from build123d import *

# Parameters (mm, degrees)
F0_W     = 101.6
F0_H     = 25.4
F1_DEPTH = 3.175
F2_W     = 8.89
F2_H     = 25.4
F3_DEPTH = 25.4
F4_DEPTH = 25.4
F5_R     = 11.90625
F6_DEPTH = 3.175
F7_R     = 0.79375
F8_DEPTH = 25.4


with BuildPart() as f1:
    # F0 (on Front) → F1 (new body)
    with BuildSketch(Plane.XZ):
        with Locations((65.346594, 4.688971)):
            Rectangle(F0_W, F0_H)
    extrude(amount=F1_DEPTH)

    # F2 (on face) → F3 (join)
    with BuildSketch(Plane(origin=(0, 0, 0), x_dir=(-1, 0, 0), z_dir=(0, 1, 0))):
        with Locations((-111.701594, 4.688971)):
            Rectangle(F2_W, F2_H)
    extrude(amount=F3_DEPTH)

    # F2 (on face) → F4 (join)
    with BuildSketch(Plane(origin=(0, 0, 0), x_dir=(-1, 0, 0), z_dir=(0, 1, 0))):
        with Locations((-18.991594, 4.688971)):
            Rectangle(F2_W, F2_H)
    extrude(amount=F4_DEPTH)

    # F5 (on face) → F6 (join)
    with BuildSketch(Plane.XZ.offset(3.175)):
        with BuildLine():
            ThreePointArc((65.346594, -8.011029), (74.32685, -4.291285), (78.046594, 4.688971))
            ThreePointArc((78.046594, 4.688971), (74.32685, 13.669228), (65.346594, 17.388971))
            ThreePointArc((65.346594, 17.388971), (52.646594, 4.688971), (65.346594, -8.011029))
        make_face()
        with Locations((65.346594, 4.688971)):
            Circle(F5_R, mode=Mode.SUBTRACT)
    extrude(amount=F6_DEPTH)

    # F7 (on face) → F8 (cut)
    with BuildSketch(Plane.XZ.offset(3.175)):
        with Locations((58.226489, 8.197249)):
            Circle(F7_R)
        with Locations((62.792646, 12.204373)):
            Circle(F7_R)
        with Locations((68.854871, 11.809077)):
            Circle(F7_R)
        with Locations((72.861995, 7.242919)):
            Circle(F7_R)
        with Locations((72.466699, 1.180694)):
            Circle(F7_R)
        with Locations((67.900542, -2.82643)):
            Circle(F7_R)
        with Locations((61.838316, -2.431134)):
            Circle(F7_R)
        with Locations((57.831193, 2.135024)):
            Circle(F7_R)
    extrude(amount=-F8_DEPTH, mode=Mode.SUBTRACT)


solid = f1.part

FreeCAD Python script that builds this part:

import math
import FreeCAD as App
import Part
import Sketcher
Q = App.Units.Quantity


def add_polygon(sketch, points):
    """Adds a closed chain of lines whose ends are joined by coincident constraints."""
    first, n = sketch.GeometryCount, len(points)
    for a, b in zip(points, points[1:] + points[:1]):
        sketch.addGeometry(Part.LineSegment(App.Vector(*a, 0), App.Vector(*b, 0)), False)
    for i in range(n):
        sketch.addConstraint(Sketcher.Constraint("Coincident", first + i, 2, first + (i + 1) % n, 1))

doc = App.newDocument("Part")
body = doc.addObject("PartDesign::Body", "Body")

sketch1 = body.newObject("Sketcher::SketchObject", "Sketch")
sketch1.AttachmentSupport = (doc.getObject("XZ_Plane"), [""])
sketch1.MapMode = "FlatFace"
add_polygon(sketch1, [(15, 17), (15, -8), (116, -8), (116, 17)])
sketch1.addConstraint(Sketcher.Constraint("Vertical", 0))
sketch1.addConstraint(Sketcher.Constraint("Horizontal", 1))
sketch1.addConstraint(Sketcher.Constraint("Vertical", 2))
sketch1.addConstraint(Sketcher.Constraint("Horizontal", 3))
sketch1.addConstraint(Sketcher.Constraint("DistanceX", 1, 1, 1, 2, Q("4 in")))
sketch1.addConstraint(Sketcher.Constraint("DistanceY", 0, 2, 0, 1, Q("1 in")))
sketch1.addConstraint(Sketcher.Constraint("DistanceY", 0, 2, -1, 1, 8.011029))
sketch1.addConstraint(Sketcher.Constraint("DistanceX", -1, 1, 0, 2, 14.546594))
pad1 = body.newObject("PartDesign::Pad", "Pad")
pad1.Profile = sketch1
pad1.Length = Q("0.125 in")

sketch2 = body.newObject("Sketcher::SketchObject", "Sketch001")
sketch2.AttachmentSupport = (doc.getObject("XZ_Plane"), [""])
sketch2.MapMode = "FlatFace"
add_polygon(sketch2, [(116, 17), (116, -8), (107, -8), (107, 17)])
sketch2.addConstraint(Sketcher.Constraint("Vertical", 0))
sketch2.addConstraint(Sketcher.Constraint("Horizontal", 1))
sketch2.addConstraint(Sketcher.Constraint("Vertical", 2))
sketch2.addConstraint(Sketcher.Constraint("Horizontal", 3))
sketch2.addConstraint(Sketcher.Constraint("DistanceY", 0, 2, 0, 1, Q("1 in")))
sketch2.addConstraint(Sketcher.Constraint("DistanceX", 1, 2, 1, 1, Q("0.35 in")))
sketch2.addConstraint(Sketcher.Constraint("DistanceY", 0, 2, -1, 1, 8.011029))
sketch2.addConstraint(Sketcher.Constraint("DistanceX", -1, 1, 0, 2, 116.146594))
pad2 = body.newObject("PartDesign::Pad", "Pad001")
pad2.Profile = sketch2
pad2.Length = Q("1 in")
pad2.Reversed = True

sketch3 = body.newObject("Sketcher::SketchObject", "Sketch002")
sketch3.AttachmentSupport = (doc.getObject("XZ_Plane"), [""])
sketch3.MapMode = "FlatFace"
add_polygon(sketch3, [(23, 17), (23, -8), (15, -8), (15, 17)])
sketch3.addConstraint(Sketcher.Constraint("Vertical", 0))
sketch3.addConstraint(Sketcher.Constraint("Horizontal", 1))
sketch3.addConstraint(Sketcher.Constraint("Vertical", 2))
sketch3.addConstraint(Sketcher.Constraint("Horizontal", 3))
sketch3.addConstraint(Sketcher.Constraint("DistanceY", 0, 2, 0, 1, Q("1 in")))
sketch3.addConstraint(Sketcher.Constraint("DistanceX", 1, 2, 1, 1, Q("0.35 in")))
sketch3.addConstraint(Sketcher.Constraint("DistanceY", 0, 2, -1, 1, 8.011029))
sketch3.addConstraint(Sketcher.Constraint("DistanceX", -1, 1, 0, 2, 23.436594))
pad3 = body.newObject("PartDesign::Pad", "Pad002")
pad3.Profile = sketch3
pad3.Length = Q("1 in")
pad3.Reversed = True

sketch4 = body.newObject("Sketcher::SketchObject", "Sketch003")
sketch4.AttachmentSupport = (doc.getObject("XZ_Plane"), [""])
sketch4.MapMode = "FlatFace"
sketch4.AttachmentOffset = App.Placement(App.Vector(0, 0, 0.125 * 25.4), App.Rotation())
sketch4.addGeometry(Part.ArcOfCircle(Part.Circle(App.Vector(65, 5, 0), App.Vector(0, 0, 1), 13), math.radians(-90), math.radians(0)), False)
sketch4.addGeometry(Part.ArcOfCircle(Part.Circle(App.Vector(65, 5, 0), App.Vector(0, 0, 1), 13), math.radians(0), math.radians(90)), False)
sketch4.addGeometry(Part.ArcOfCircle(Part.Circle(App.Vector(65, 5, 0), App.Vector(0, 0, 1), 13), math.radians(90), math.radians(270)), False)
sketch4.addGeometry(Part.Circle(App.Vector(65, 5, 0), App.Vector(0, 0, 1), 12), False)
sketch4.addConstraint(Sketcher.Constraint("Tangent", 0, 2, 1, 1))
sketch4.addConstraint(Sketcher.Constraint("Tangent", 1, 2, 2, 1))
sketch4.addConstraint(Sketcher.Constraint("Tangent", 2, 2, 0, 1))
sketch4.addConstraint(Sketcher.Constraint("Coincident", 3, 3, 0, 3))
sketch4.addConstraint(Sketcher.Constraint("Horizontal", 3, 3, 0, 2))
sketch4.addConstraint(Sketcher.Constraint("Vertical", 3, 3, 1, 2))
sketch4.addConstraint(Sketcher.Constraint("Vertical", 1, 2, 2, 2))
sketch4.addConstraint(Sketcher.Constraint("Radius", 0, Q("0.5 in")))
sketch4.addConstraint(Sketcher.Constraint("Diameter", 3, Q("0.9375 in")))
sketch4.addConstraint(Sketcher.Constraint("DistanceY", -1, 1, 0, 3, 4.688971))
sketch4.addConstraint(Sketcher.Constraint("DistanceX", -1, 1, 0, 3, 65.346594))
pad4 = body.newObject("PartDesign::Pad", "Pad003")
pad4.Profile = sketch4
pad4.Length = Q("0.125 in")

sketch5 = body.newObject("Sketcher::SketchObject", "Sketch004")
sketch5.AttachmentSupport = (doc.getObject("XZ_Plane"), [""])
sketch5.MapMode = "FlatFace"
sketch5.AttachmentOffset = App.Placement(App.Vector(0, 0, 0.125 * 25.4), App.Rotation())
sketch5.addGeometry(Part.Circle(App.Vector(58.2, 8.2, 0), App.Vector(0, 0, 1), 0.8), False)
sketch5.addGeometry(Part.Circle(App.Vector(62.8, 12.2, 0), App.Vector(0, 0, 1), 0.8), False)
sketch5.addGeometry(Part.Circle(App.Vector(68.9, 11.8, 0), App.Vector(0, 0, 1), 0.8), False)
sketch5.addGeometry(Part.Circle(App.Vector(72.9, 7.2, 0), App.Vector(0, 0, 1), 0.8), False)
sketch5.addGeometry(Part.Circle(App.Vector(72.5, 1.2, 0), App.Vector(0, 0, 1), 0.8), False)
sketch5.addGeometry(Part.Circle(App.Vector(67.9, -2.8, 0), App.Vector(0, 0, 1), 0.8), False)
sketch5.addGeometry(Part.Circle(App.Vector(61.8, -2.4, 0), App.Vector(0, 0, 1), 0.8), False)
sketch5.addGeometry(Part.Circle(App.Vector(57.8, 2.1, 0), App.Vector(0, 0, 1), 0.8), False)
sketch5.addConstraint(Sketcher.Constraint("Equal", 0, 1))
sketch5.addConstraint(Sketcher.Constraint("Equal", 1, 2))
sketch5.addConstraint(Sketcher.Constraint("Equal", 2, 3))
sketch5.addConstraint(Sketcher.Constraint("Equal", 3, 4))
sketch5.addConstraint(Sketcher.Constraint("Equal", 4, 5))
sketch5.addConstraint(Sketcher.Constraint("Equal", 5, 6))
sketch5.addConstraint(Sketcher.Constraint("Equal", 6, 7))
sketch5.addConstraint(Sketcher.Constraint("Diameter", 0, Q("0.0625 in")))
sketch5.addConstraint(Sketcher.Constraint("DistanceX", -1, 1, 4, 3, 72.466699))
sketch5.addConstraint(Sketcher.Constraint("DistanceX", -1, 1, 0, 3, 58.226489))
sketch5.addConstraint(Sketcher.Constraint("DistanceY", -1, 1, 0, 3, 8.197249))
sketch5.addConstraint(Sketcher.Constraint("DistanceX", -1, 1, 2, 3, 68.854871))
sketch5.addConstraint(Sketcher.Constraint("DistanceY", -1, 1, 3, 3, 7.242919))
sketch5.addConstraint(Sketcher.Constraint("DistanceX", -1, 1, 5, 3, 67.900542))
sketch5.addConstraint(Sketcher.Constraint("DistanceY", 5, 3, -1, 1, 2.82643))
sketch5.addConstraint(Sketcher.Constraint("DistanceY", 0, 3, 2, 3, 3.611828))
sketch5.addConstraint(Sketcher.Constraint("DistanceX", 1, 3, 3, 3, 10.069349))
sketch5.addConstraint(Sketcher.Constraint("DistanceY", 4, 3, 1, 3, 11.023679))
sketch5.addConstraint(Sketcher.Constraint("DistanceY", 6, 3, 4, 3, 3.611828))
sketch5.addConstraint(Sketcher.Constraint("DistanceX", 6, 3, 3, 3, 11.023679))
sketch5.addConstraint(Sketcher.Constraint("DistanceY", 7, 3, 1, 3, 10.069349))
sketch5.addConstraint(Sketcher.Constraint("DistanceX", 7, 3, 5, 3, 10.069349))
sketch5.addConstraint(Sketcher.Constraint("DistanceX", -1, 1, 1, 3, 62.792646))
sketch5.addConstraint(Sketcher.Constraint("DistanceY", -1, 1, 1, 3, 12.204373))
pocket1 = body.newObject("PartDesign::Pocket", "Pocket")
pocket1.Profile = sketch5
pocket1.Length = Q("1 in")

doc.recompute()
